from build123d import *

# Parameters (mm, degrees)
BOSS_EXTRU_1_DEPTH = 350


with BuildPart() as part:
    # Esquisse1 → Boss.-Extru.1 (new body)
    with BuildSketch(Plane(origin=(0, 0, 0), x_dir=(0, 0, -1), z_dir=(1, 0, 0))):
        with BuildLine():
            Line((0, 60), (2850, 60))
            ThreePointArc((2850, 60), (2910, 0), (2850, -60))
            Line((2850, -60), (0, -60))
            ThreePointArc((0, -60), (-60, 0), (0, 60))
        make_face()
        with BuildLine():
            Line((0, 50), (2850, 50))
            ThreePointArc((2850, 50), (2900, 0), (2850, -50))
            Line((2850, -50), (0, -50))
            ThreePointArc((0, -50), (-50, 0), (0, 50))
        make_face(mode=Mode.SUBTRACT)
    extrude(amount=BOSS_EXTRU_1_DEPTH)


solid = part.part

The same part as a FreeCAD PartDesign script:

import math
import FreeCAD as App
import Part
import Sketcher
Q = App.Units.Quantity

doc = App.newDocument("Part")
params = doc.addObject("Spreadsheet::Sheet", "Params")
for row, (alias, value) in enumerate([
    ("sketch1_radius", "60 mm"),
    ("sketch1_radius2", "50 mm"),
    ("sketch1_height", "2850 mm"),
    ("pad1_length", "350 mm"),
], start=1):
    params.set(f"A{row}", alias)
    params.set(f"B{row}", "=" + value)
    params.setAlias(f"B{row}", alias)

body = doc.addObject("PartDesign::Body", "Body")

# Sketch on YZ plane
sketch1 = doc.addObject("Sketcher::SketchObject", "Sketch")
body.addObject(sketch1)
sketch1.AttachmentSupport = (doc.YZ_Plane, [""])
sketch1.MapMode = "FlatFace"
sketch1.addGeometry([
    Part.LineSegment(App.Vector(60, -2850, 0), App.Vector(60, 0, 0)),  # 0
    Part.ArcOfCircle(Part.Circle(App.Vector(0, 0, 0), App.Vector(0, 0, 1), 60), math.radians(0), math.radians(180)),  # 1
    Part.LineSegment(App.Vector(-60, 0, 0), App.Vector(-60, -2850, 0)),  # 2
    Part.ArcOfCircle(Part.Circle(App.Vector(0, -2850, 0), App.Vector(0, 0, 1), 60), math.radians(180), math.radians(360)),  # 3
    Part.LineSegment(App.Vector(50, 0, 0), App.Vector(50, -2850, 0)),  # 4
    Part.ArcOfCircle(Part.Circle(App.Vector(0, -2850, 0), App.Vector(0, 0, 1), 50), math.radians(180), math.radians(360)),  # 5
    Part.LineSegment(App.Vector(-50, -2850, 0), App.Vector(-50, 0, 0)),  # 6
    Part.ArcOfCircle(Part.Circle(App.Vector(0, 0, 0), App.Vector(0, 0, 1), 50), math.radians(0), math.radians(180)),  # 7
], False)
sketch1.addConstraint([
    Sketcher.Constraint("Tangent", 0, 2, 1, 1),
    Sketcher.Constraint("Tangent", 1, 2, 2, 1),
    Sketcher.Constraint("Tangent", 2, 2, 3, 1),
    Sketcher.Constraint("Tangent", 3, 2, 0, 1),
    Sketcher.Constraint("Tangent", 4, 2, 5, 2),
    Sketcher.Constraint("Tangent", 5, 1, 6, 1),
    Sketcher.Constraint("Tangent", 6, 2, 7, 2),
    Sketcher.Constraint("Tangent", 7, 1, 4, 1),
    Sketcher.Constraint("Vertical", 0),
    Sketcher.Constraint("Vertical", 2),
    Sketcher.Constraint("Vertical", 4),
    Sketcher.Constraint("Vertical", 6),
    Sketcher.Constraint("Coincident", 1, 3, -1, 1),
    Sketcher.Constraint("Coincident", 7, 3, -1, 1),
    Sketcher.Constraint("Horizontal", 5, 3, 2, 2),
    Sketcher.Constraint("Radius", 1, Q("60 mm")),
    Sketcher.Constraint("Radius", 5, Q("50 mm")),
    Sketcher.Constraint("DistanceY", 0, 1, 0, 2, Q("2850 mm")),
])
sketch1.setExpression("Constraints[15]", "Params.sketch1_radius")
sketch1.setExpression("Constraints[16]", "Params.sketch1_radius2")
sketch1.setExpression("Constraints[17]", "Params.sketch1_height")
pad1 = doc.addObject("PartDesign::Pad", "Pad")
body.addObject(pad1)
pad1.Profile = sketch1
pad1.setExpression("Length", "Params.pad1_length")

doc.recompute()
